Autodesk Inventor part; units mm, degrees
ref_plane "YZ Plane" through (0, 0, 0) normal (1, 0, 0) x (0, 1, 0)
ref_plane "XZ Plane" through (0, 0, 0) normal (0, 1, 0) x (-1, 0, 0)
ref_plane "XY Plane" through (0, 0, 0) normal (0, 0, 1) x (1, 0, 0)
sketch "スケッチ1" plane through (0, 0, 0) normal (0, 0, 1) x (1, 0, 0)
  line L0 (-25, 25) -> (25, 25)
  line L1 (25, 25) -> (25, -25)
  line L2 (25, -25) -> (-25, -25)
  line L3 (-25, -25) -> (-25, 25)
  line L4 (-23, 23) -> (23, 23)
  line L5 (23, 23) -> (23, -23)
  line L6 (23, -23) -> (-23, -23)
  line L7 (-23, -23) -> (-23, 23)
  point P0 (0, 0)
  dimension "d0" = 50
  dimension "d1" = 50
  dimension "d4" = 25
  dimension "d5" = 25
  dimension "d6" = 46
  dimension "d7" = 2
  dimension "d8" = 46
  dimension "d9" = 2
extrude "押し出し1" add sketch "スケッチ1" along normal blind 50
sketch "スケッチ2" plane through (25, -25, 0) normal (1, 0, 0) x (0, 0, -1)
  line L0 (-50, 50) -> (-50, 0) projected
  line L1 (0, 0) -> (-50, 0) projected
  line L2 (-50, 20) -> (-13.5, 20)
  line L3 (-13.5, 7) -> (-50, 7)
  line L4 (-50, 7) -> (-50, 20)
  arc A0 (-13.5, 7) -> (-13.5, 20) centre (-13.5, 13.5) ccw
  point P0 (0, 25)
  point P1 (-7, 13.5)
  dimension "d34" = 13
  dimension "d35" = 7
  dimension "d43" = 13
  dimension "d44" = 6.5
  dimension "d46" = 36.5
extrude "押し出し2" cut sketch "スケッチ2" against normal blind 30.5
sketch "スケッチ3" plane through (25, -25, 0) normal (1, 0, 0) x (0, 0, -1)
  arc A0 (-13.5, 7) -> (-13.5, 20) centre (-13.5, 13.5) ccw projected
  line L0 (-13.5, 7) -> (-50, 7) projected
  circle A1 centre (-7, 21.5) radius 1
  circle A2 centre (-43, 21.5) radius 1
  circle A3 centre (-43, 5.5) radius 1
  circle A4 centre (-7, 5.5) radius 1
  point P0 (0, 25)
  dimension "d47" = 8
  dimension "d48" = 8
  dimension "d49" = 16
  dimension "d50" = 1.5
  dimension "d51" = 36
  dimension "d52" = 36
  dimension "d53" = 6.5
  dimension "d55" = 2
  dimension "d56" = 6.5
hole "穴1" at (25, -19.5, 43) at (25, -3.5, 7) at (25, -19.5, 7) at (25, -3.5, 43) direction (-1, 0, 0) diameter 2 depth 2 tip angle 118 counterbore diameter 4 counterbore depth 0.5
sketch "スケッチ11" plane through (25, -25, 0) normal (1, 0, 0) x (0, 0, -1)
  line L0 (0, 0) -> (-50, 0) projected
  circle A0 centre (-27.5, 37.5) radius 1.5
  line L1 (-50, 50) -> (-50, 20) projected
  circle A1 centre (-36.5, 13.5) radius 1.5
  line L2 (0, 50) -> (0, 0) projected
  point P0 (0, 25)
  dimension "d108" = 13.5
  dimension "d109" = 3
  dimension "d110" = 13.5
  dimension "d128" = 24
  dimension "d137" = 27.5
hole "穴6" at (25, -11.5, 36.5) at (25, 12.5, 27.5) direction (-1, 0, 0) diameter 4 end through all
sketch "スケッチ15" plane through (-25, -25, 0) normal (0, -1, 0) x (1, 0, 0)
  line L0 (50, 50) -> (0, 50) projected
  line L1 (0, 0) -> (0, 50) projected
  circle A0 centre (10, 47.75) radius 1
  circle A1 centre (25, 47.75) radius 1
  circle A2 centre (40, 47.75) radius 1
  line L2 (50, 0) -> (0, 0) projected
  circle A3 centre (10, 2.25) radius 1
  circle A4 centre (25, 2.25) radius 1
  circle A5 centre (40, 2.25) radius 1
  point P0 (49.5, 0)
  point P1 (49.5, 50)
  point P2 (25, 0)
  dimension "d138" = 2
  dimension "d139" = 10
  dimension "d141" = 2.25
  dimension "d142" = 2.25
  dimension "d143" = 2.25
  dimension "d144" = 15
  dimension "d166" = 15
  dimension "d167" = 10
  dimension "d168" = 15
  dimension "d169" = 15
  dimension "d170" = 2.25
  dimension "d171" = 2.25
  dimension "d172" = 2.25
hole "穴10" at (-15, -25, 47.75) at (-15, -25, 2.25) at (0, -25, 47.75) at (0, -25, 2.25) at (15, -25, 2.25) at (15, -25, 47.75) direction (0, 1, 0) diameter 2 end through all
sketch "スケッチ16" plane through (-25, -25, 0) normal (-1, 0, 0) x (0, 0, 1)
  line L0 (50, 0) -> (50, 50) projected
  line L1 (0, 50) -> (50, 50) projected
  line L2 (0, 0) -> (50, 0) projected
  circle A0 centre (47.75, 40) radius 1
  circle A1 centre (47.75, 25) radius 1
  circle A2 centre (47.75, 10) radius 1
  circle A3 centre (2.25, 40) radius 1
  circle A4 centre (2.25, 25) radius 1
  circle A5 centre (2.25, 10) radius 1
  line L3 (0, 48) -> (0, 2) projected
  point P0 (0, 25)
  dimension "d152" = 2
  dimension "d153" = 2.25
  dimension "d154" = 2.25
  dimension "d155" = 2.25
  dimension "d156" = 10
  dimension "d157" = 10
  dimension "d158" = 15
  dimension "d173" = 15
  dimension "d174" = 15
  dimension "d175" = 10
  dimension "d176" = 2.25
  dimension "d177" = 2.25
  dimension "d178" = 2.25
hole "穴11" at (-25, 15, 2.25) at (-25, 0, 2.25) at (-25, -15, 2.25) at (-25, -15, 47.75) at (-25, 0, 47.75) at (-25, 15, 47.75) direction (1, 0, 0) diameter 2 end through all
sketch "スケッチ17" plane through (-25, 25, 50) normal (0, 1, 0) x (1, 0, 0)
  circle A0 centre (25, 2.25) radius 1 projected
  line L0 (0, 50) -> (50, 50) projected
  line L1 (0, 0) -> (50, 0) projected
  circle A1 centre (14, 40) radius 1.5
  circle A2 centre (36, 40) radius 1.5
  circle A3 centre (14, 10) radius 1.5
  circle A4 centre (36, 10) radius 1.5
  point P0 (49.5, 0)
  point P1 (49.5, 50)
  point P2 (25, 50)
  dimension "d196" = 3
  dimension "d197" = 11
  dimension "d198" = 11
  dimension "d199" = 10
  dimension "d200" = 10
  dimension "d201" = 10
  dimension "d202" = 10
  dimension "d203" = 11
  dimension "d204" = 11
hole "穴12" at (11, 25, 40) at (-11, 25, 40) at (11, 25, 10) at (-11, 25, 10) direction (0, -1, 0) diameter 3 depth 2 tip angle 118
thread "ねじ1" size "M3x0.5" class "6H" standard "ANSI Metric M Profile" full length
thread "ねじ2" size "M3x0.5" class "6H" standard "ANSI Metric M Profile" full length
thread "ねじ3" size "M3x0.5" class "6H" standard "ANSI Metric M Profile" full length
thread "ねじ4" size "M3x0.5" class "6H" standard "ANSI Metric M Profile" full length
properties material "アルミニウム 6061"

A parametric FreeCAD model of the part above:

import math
import FreeCAD as App
import Part
import Sketcher
from FreeCAD import Vector
Q = App.Units.Quantity

doc = App.newDocument("Part")
body = doc.addObject("PartDesign::Body", "Body")

# Sketch on XY plane
sketch1 = body.newObject("Sketcher::SketchObject", "Sketch")
sketch1.AttachmentSupport = (doc.getObject("XY_Plane"), [""])
sketch1.MapMode = "FlatFace"
sketch1.addGeometry(Part.LineSegment(Vector(25, 25, 0), Vector(-25, 25, 0)), False)
sketch1.addGeometry(Part.LineSegment(Vector(-25, 25, 0), Vector(-25, -25, 0)), False)
sketch1.addGeometry(Part.LineSegment(Vector(-25, -25, 0), Vector(25, -25, 0)), False)
sketch1.addGeometry(Part.LineSegment(Vector(25, -25, 0), Vector(25, 25, 0)), False)
sketch1.addGeometry(Part.LineSegment(Vector(-23, -23, 0), Vector(-23, 23, 0)), False)
sketch1.addGeometry(Part.LineSegment(Vector(-23, 23, 0), Vector(23, 23, 0)), False)
sketch1.addGeometry(Part.LineSegment(Vector(23, 23, 0), Vector(23, -23, 0)), False)
sketch1.addGeometry(Part.LineSegment(Vector(23, -23, 0), Vector(-23, -23, 0)), False)
sketch1.addConstraint(Sketcher.Constraint("Coincident", 0, 2, 1, 1))
sketch1.addConstraint(Sketcher.Constraint("Coincident", 1, 2, 2, 1))
sketch1.addConstraint(Sketcher.Constraint("Coincident", 2, 2, 3, 1))
sketch1.addConstraint(Sketcher.Constraint("Coincident", 3, 2, 0, 1))
sketch1.addConstraint(Sketcher.Constraint("Coincident", 4, 2, 5, 1))
sketch1.addConstraint(Sketcher.Constraint("Coincident", 5, 2, 6, 1))
sketch1.addConstraint(Sketcher.Constraint("Coincident", 6, 2, 7, 1))
sketch1.addConstraint(Sketcher.Constraint("Coincident", 7, 2, 4, 1))
sketch1.addConstraint(Sketcher.Constraint("Horizontal", 0))
sketch1.addConstraint(Sketcher.Constraint("Vertical", 1))
sketch1.addConstraint(Sketcher.Constraint("Horizontal", 2))
sketch1.addConstraint(Sketcher.Constraint("Vertical", 3))
sketch1.addConstraint(Sketcher.Constraint("Vertical", 4))
sketch1.addConstraint(Sketcher.Constraint("Horizontal", 5))
sketch1.addConstraint(Sketcher.Constraint("Vertical", 6))
sketch1.addConstraint(Sketcher.Constraint("Horizontal", 7))
sketch1.addConstraint(Sketcher.Constraint("Symmetric", 0, 2, 2, 2, -1, 1))
sketch1.addConstraint(Sketcher.Constraint("Symmetric", 4, 2, 6, 2, -1, 1))
sketch1.addConstraint(Sketcher.Constraint("Equal", 2, 1))
sketch1.addConstraint(Sketcher.Constraint("Equal", 7, 4))
sketch1.addConstraint(Sketcher.Constraint("DistanceX", 0, 2, 0, 1, Q("50 mm")))
sketch1.addConstraint(Sketcher.Constraint("DistanceX", 5, 1, 5, 2, Q("46 mm")))
pad1 = body.newObject("PartDesign::Pad", "Pad")
pad1.Profile = sketch1
pad1.Length = 50

# Sketch on YZ plane
sketch2 = body.newObject("Sketcher::SketchObject", "Sketch001")
sketch2.AttachmentSupport = (doc.getObject("YZ_Plane"), [""])
sketch2.MapMode = "FlatFace"
sketch2.AttachmentOffset = App.Placement(Vector(0, 0, 25), App.Rotation())
sketch2.addGeometry(Part.LineSegment(Vector(-5, 14, 0), Vector(-5, 50, 0)), False)
sketch2.addGeometry(Part.LineSegment(Vector(-5, 50, 0), Vector(-18, 50, 0)), False)
sketch2.addGeometry(Part.LineSegment(Vector(-18, 50, 0), Vector(-18, 14, 0)), False)
sketch2.addGeometry(Part.ArcOfCircle(Part.Circle(Vector(-12, 14, 0), Vector(0, 0, 1), 6), math.radians(180), math.radians(360)), False)
sketch2.addConstraint(Sketcher.Constraint("Coincident", 0, 2, 1, 1))
sketch2.addConstraint(Sketcher.Constraint("Coincident", 1, 2, 2, 1))
sketch2.addConstraint(Sketcher.Constraint("Tangent", 2, 2, 3, 1))
sketch2.addConstraint(Sketcher.Constraint("Tangent", 3, 2, 0, 1))
sketch2.addConstraint(Sketcher.Constraint("Vertical", 0))
sketch2.addConstraint(Sketcher.Constraint("Horizontal", 1))
sketch2.addConstraint(Sketcher.Constraint("Vertical", 2))
sketch2.addConstraint(Sketcher.Constraint("Radius", 3, Q("6.5 mm")))
sketch2.addConstraint(Sketcher.Constraint("DistanceY", 0, 1, 0, 2, Q("36.5 mm")))
sketch2.addConstraint(Sketcher.Constraint("DistanceX", 0, 2, -1, 1, Q("5 mm")))
sketch2.addConstraint(Sketcher.Constraint("DistanceY", -1, 1, 0, 2, Q("50 mm")))
pocket1 = body.newObject("PartDesign::Pocket", "Pocket")
pocket1.Profile = sketch2
pocket1.Length = 30.5

# Sketch on YZ plane
sketch3 = body.newObject("Sketcher::SketchObject", "Sketch002")
sketch3.AttachmentSupport = (doc.getObject("YZ_Plane"), [""])
sketch3.MapMode = "FlatFace"
sketch3.AttachmentOffset = App.Placement(Vector(0, 0, 25), App.Rotation())
sketch3.addGeometry(Part.Circle(Vector(-19.5, 43, 0), Vector(0, 0, 1), 1), False)
sketch3.addGeometry(Part.Circle(Vector(-3.5, 7, 0), Vector(0, 0, 1), 1), False)
sketch3.addGeometry(Part.Circle(Vector(-19.5, 7, 0), Vector(0, 0, 1), 1), False)
sketch3.addGeometry(Part.Circle(Vector(-3.5, 43, 0), Vector(0, 0, 1), 1), False)
sketch3.addConstraint(Sketcher.Constraint("Equal", 0, 1))
sketch3.addConstraint(Sketcher.Constraint("Equal", 1, 2))
sketch3.addConstraint(Sketcher.Constraint("Equal", 2, 3))
sketch3.addConstraint(Sketcher.Constraint("Horizontal", 1, 3, 2, 3))
sketch3.addConstraint(Sketcher.Constraint("Horizontal", 0, 3, 3, 3))
sketch3.addConstraint(Sketcher.Constraint("Vertical", 0, 3, 2, 3))
sketch3.addConstraint(Sketcher.Constraint("Vertical", 1, 3, 3, 3))
sketch3.addConstraint(Sketcher.Constraint("Diameter", 0, Q("2 mm")))
sketch3.addConstraint(Sketcher.Constraint("DistanceY", -1, 1, 0, 3, Q("43 mm")))
sketch3.addConstraint(Sketcher.Constraint("DistanceY", -1, 1, 1, 3, Q("7 mm")))
sketch3.addConstraint(Sketcher.Constraint("DistanceX", 0, 3, 1, 3, Q("16 mm")))
sketch3.addConstraint(Sketcher.Constraint("DistanceX", 0, 3, -1, 1, Q("19.5 mm")))
doc.recompute()
hole = body.newObject("PartDesign::Hole", "Hole")
hole.Profile = sketch3
hole.ThreadType = "None"
hole.Diameter = 2
hole.DepthType = "Dimension"
hole.Depth = 2
hole.DrillPoint = "Angled"
hole.DrillPointAngle = 118
hole.HoleCutType = "Counterbore"
hole.HoleCutDiameter = 4
hole.HoleCutDepth = 0.5

# Sketch on YZ plane
sketch4 = body.newObject("Sketcher::SketchObject", "Sketch003")
sketch4.AttachmentSupport = (doc.getObject("YZ_Plane"), [""])
sketch4.MapMode = "FlatFace"
sketch4.AttachmentOffset = App.Placement(Vector(0, 0, 25), App.Rotation())
sketch4.addGeometry(Part.Circle(Vector(-11.5, 36.5, 0), Vector(0, 0, 1), 2), False)
sketch4.addGeometry(Part.Circle(Vector(12.5, 27.5, 0), Vector(0, 0, 1), 2), False)
sketch4.addConstraint(Sketcher.Constraint("Equal", 0, 1))
sketch4.addConstraint(Sketcher.Constraint("Diameter", 0, Q("4 mm")))
sketch4.addConstraint(Sketcher.Constraint("DistanceX", 0, 3, 1, 3, Q("24 mm")))
sketch4.addConstraint(Sketcher.Constraint("DistanceY", 1, 3, 0, 3, Q("9 mm")))
sketch4.addConstraint(Sketcher.Constraint("DistanceX", 0, 3, -1, 1, Q("11.5 mm")))
sketch4.addConstraint(Sketcher.Constraint("DistanceY", -1, 1, 0, 3, Q("36.5 mm")))
doc.recompute()
hole2 = body.newObject("PartDesign::Hole", "Hole001")
hole2.Profile = sketch4
hole2.ThreadType = "None"
hole2.Diameter = 4
hole2.DepthType = "ThroughAll"

# Sketch on XZ plane
sketch5 = body.newObject("Sketcher::SketchObject", "Sketch004")
sketch5.AttachmentSupport = (doc.getObject("XZ_Plane"), [""])
sketch5.MapMode = "FlatFace"
sketch5.AttachmentOffset = App.Placement(Vector(0, 0, 25), App.Rotation())
sketch5.addGeometry(Part.Circle(Vector(-15, 47.8, 0), Vector(0, 0, 1), 1), False)
sketch5.addGeometry(Part.Circle(Vector(-15, 2.2, 0), Vector(0, 0, 1), 1), False)
sketch5.addGeometry(Part.Circle(Vector(0, 47.8, 0), Vector(0, 0, 1), 1), False)
sketch5.addGeometry(Part.Circle(Vector(0, 2.2, 0), Vector(0, 0, 1), 1), False)
sketch5.addGeometry(Part.Circle(Vector(15, 2.2, 0), Vector(0, 0, 1), 1), False)
sketch5.addGeometry(Part.Circle(Vector(15, 47.8, 0), Vector(0, 0, 1), 1), False)
sketch5.addConstraint(Sketcher.Constraint("Equal", 0, 1))
sketch5.addConstraint(Sketcher.Constraint("Equal", 1, 2))
sketch5.addConstraint(Sketcher.Constraint("Equal", 2, 3))
sketch5.addConstraint(Sketcher.Constraint("Equal", 3, 4))
sketch5.addConstraint(Sketcher.Constraint("Equal", 4, 5))
sketch5.addConstraint(Sketcher.Constraint("Symmetric", 1, 3, 4, 3, -2))
sketch5.addConstraint(Sketcher.Constraint("Symmetric", 0, 3, 5, 3, -2))
sketch5.addConstraint(Sketcher.Constraint("PointOnObject", 2, 3, -2))
sketch5.addConstraint(Sketcher.Constraint("PointOnObject", 3, 3, -2))
sketch5.addConstraint(Sketcher.Constraint("Horizontal", 0, 3, 2, 3))
sketch5.addConstraint(Sketcher.Constraint("Horizontal", 1, 3, 3, 3))
sketch5.addConstraint(Sketcher.Constraint("Vertical", 0, 3, 1, 3))
sketch5.addConstraint(Sketcher.Constraint("Diameter", 0, Q("2 mm")))
sketch5.addConstraint(Sketcher.Constraint("DistanceX", 0, 3, -1, 1, Q("15 mm")))
sketch5.addConstraint(Sketcher.Constraint("DistanceY", 1, 3, 0, 3, Q("45.5 mm")))
sketch5.addConstraint(Sketcher.Constraint("DistanceY", -1, 1, 0, 3, Q("47.75 mm")))
doc.recompute()
hole3 = body.newObject("PartDesign::Hole", "Hole002")
hole3.Profile = sketch5
hole3.ThreadType = "None"
hole3.Diameter = 2
hole3.DepthType = "ThroughAll"

# Sketch on YZ plane
sketch6 = body.newObject("Sketcher::SketchObject", "Sketch005")
sketch6.AttachmentSupport = (doc.getObject("YZ_Plane"), [""])
sketch6.MapMode = "FlatFace"
sketch6.AttachmentOffset = App.Placement(Vector(0, 0, -25), App.Rotation())
sketch6.addGeometry(Part.Circle(Vector(15, 2.2, 0), Vector(0, 0, 1), 1), False)
sketch6.addGeometry(Part.Circle(Vector(0, 2.2, 0), Vector(0, 0, 1), 1), False)
sketch6.addGeometry(Part.Circle(Vector(-15, 2.2, 0), Vector(0, 0, 1), 1), False)
sketch6.addGeometry(Part.Circle(Vector(-15, 47.8, 0), Vector(0, 0, 1), 1), False)
sketch6.addGeometry(Part.Circle(Vector(0, 47.8, 0), Vector(0, 0, 1), 1), False)
sketch6.addGeometry(Part.Circle(Vector(15, 47.8, 0), Vector(0, 0, 1), 1), False)
sketch6.addConstraint(Sketcher.Constraint("Equal", 0, 1))
sketch6.addConstraint(Sketcher.Constraint("Equal", 1, 2))
sketch6.addConstraint(Sketcher.Constraint("Equal", 2, 3))
sketch6.addConstraint(Sketcher.Constraint("Equal", 3, 4))
sketch6.addConstraint(Sketcher.Constraint("Equal", 4, 5))
sketch6.addConstraint(Sketcher.Constraint("Symmetric", 0, 3, 2, 3, -2))
sketch6.addConstraint(Sketcher.Constraint("Symmetric", 3, 3, 5, 3, -2))
sketch6.addConstraint(Sketcher.Constraint("PointOnObject", 1, 3, -2))
sketch6.addConstraint(Sketcher.Constraint("PointOnObject", 4, 3, -2))
sketch6.addConstraint(Sketcher.Constraint("Horizontal", 0, 3, 1, 3))
sketch6.addConstraint(Sketcher.Constraint("Horizontal", 3, 3, 4, 3))
sketch6.addConstraint(Sketcher.Constraint("Vertical", 2, 3, 3, 3))
sketch6.addConstraint(Sketcher.Constraint("Diameter", 0, Q("2 mm")))
sketch6.addConstraint(Sketcher.Constraint("DistanceX", -1, 1, 0, 3, Q("15 mm")))
sketch6.addConstraint(Sketcher.Constraint("DistanceY", 2, 3, 3, 3, Q("45.5 mm")))
sketch6.addConstraint(Sketcher.Constraint("DistanceY", -1, 1, 0, 3, Q("2.25 mm")))
doc.recompute()
hole4 = body.newObject("PartDesign::Hole", "Hole003")
hole4.Profile = sketch6
hole4.ThreadType = "None"
hole4.Diameter = 2
hole4.DepthType = "ThroughAll"
hole4.Reversed = True

# Sketch on XZ plane
sketch7 = body.newObject("Sketcher::SketchObject", "Sketch006")
sketch7.AttachmentSupport = (doc.getObject("XZ_Plane"), [""])
sketch7.MapMode = "FlatFace"
sketch7.AttachmentOffset = App.Placement(Vector(0, 0, -25), App.Rotation())
sketch7.addGeometry(Part.Circle(Vector(11, 40, 0), Vector(0, 0, 1), 1.5), False)
sketch7.addGeometry(Part.Circle(Vector(-11, 40, 0), Vector(0, 0, 1), 1.5), False)
sketch7.addGeometry(Part.Circle(Vector(11, 10, 0), Vector(0, 0, 1), 1.5), False)
sketch7.addGeometry(Part.Circle(Vector(-11, 10, 0), Vector(0, 0, 1), 1.5), False)
sketch7.addConstraint(Sketcher.Constraint("Equal", 0, 1))
sketch7.addConstraint(Sketcher.Constraint("Equal", 1, 2))
sketch7.addConstraint(Sketcher.Constraint("Equal", 2, 3))
sketch7.addConstraint(Sketcher.Constraint("Symmetric", 0, 3, 1, 3, -2))
sketch7.addConstraint(Sketcher.Constraint("Symmetric", 2, 3, 3, 3, -2))
sketch7.addConstraint(Sketcher.Constraint("Vertical", 0, 3, 2, 3))
sketch7.addConstraint(Sketcher.Constraint("Diameter", 0, Q("3 mm")))
sketch7.addConstraint(Sketcher.Constraint("DistanceX", -1, 1, 0, 3, Q("11 mm")))
sketch7.addConstraint(Sketcher.Constraint("DistanceY", -1, 1, 0, 3, Q("40 mm")))
sketch7.addConstraint(Sketcher.Constraint("DistanceY", -1, 1, 2, 3, Q("10 mm")))
doc.recompute()
hole5 = body.newObject("PartDesign::Hole", "Hole004")
hole5.Profile = sketch7
hole5.ThreadType = "None"
hole5.Diameter = 3
hole5.DepthType = "Dimension"
hole5.Depth = 2
hole5.DrillPoint = "Angled"
hole5.DrillPointAngle = 118
hole5.Reversed = True

doc.recompute()
